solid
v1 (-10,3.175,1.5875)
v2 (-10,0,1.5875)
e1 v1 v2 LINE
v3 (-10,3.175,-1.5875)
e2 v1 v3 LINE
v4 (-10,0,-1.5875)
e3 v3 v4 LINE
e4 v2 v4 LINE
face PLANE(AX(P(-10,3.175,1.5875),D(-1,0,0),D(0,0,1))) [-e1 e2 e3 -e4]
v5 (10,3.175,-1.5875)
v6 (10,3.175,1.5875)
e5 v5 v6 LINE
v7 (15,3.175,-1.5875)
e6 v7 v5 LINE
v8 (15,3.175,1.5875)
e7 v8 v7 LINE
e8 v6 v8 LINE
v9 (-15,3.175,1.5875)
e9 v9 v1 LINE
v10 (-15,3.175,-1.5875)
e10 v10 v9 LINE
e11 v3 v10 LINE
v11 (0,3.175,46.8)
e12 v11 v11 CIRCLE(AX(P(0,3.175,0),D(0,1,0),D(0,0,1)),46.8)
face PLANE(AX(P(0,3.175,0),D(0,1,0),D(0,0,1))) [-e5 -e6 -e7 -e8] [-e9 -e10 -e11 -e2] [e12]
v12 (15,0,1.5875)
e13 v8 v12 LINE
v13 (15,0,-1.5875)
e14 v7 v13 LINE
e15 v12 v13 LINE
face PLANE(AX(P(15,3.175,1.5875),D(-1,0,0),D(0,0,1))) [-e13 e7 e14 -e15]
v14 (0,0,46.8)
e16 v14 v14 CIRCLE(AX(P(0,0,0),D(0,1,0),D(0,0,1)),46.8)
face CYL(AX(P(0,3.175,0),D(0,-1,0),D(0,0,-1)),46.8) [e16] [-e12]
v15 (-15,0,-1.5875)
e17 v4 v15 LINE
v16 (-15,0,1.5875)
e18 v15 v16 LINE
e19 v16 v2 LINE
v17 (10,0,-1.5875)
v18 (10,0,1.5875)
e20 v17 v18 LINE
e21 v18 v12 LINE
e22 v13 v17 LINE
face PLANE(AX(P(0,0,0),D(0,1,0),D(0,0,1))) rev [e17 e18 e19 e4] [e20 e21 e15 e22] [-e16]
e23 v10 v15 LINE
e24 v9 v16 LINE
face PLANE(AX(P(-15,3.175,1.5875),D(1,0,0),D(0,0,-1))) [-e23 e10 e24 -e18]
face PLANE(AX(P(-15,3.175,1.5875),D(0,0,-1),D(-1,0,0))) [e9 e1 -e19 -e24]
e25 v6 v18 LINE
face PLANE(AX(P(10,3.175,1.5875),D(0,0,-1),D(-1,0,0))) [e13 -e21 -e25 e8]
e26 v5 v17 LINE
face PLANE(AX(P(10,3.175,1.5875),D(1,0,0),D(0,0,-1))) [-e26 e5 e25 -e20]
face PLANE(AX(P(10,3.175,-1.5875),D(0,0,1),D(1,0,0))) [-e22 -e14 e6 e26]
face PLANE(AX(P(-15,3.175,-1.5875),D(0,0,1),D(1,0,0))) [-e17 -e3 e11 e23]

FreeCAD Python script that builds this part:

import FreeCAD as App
import Part
import Sketcher

doc = App.newDocument("Part")
params = doc.addObject("Spreadsheet::Sheet", "Params")
for row, (alias, value) in enumerate([
    ("sketch1_diameter", "93.6 mm"),
    ("sketch1_width", "5 mm"),
    ("pad1_length", "3.175 mm"),
], start=1):
    params.set(f"A{row}", alias)
    params.set(f"B{row}", "=" + value)
    params.setAlias(f"B{row}", alias)

body = doc.addObject("PartDesign::Body", "Body")

# Sketch on XZ plane
sketch1 = body.newObject("Sketcher::SketchObject", "Sketch")
sketch1.AttachmentSupport = (doc.getObject("XZ_Plane"), [""])
sketch1.MapMode = "FlatFace"
sketch1.addGeometry(Part.Circle(App.Vector(0, 0, 0), App.Vector(0, 0, 1), 46.8), False)
sketch1.addGeometry(Part.LineSegment(App.Vector(-10, 1.6, 0), App.Vector(-15, 1.6, 0)), False)
sketch1.addGeometry(Part.LineSegment(App.Vector(-15, 1.6, 0), App.Vector(-15, -1.6, 0)), False)
sketch1.addGeometry(Part.LineSegment(App.Vector(-15, -1.6, 0), App.Vector(-10, -1.6, 0)), False)
sketch1.addGeometry(Part.LineSegment(App.Vector(-10, -1.6, 0), App.Vector(-10, 1.6, 0)), False)
sketch1.addGeometry(Part.LineSegment(App.Vector(15, 1.6, 0), App.Vector(10, 1.6, 0)), False)
sketch1.addGeometry(Part.LineSegment(App.Vector(10, 1.6, 0), App.Vector(10, -1.6, 0)), False)
sketch1.addGeometry(Part.LineSegment(App.Vector(10, -1.6, 0), App.Vector(15, -1.6, 0)), False)
sketch1.addGeometry(Part.LineSegment(App.Vector(15, -1.6, 0), App.Vector(15, 1.6, 0)), False)
sketch1.addConstraint(Sketcher.Constraint("Coincident", 1, 2, 2, 1))
sketch1.addConstraint(Sketcher.Constraint("Coincident", 2, 2, 3, 1))
sketch1.addConstraint(Sketcher.Constraint("Coincident", 3, 2, 4, 1))
sketch1.addConstraint(Sketcher.Constraint("Coincident", 4, 2, 1, 1))
sketch1.addConstraint(Sketcher.Constraint("Coincident", 5, 2, 6, 1))
sketch1.addConstraint(Sketcher.Constraint("Coincident", 6, 2, 7, 1))
sketch1.addConstraint(Sketcher.Constraint("Coincident", 7, 2, 8, 1))
sketch1.addConstraint(Sketcher.Constraint("Coincident", 8, 2, 5, 1))
sketch1.addConstraint(Sketcher.Constraint("Horizontal", 1))
sketch1.addConstraint(Sketcher.Constraint("Vertical", 2))
sketch1.addConstraint(Sketcher.Constraint("Horizontal", 3))
sketch1.addConstraint(Sketcher.Constraint("Vertical", 4))
sketch1.addConstraint(Sketcher.Constraint("Horizontal", 5))
sketch1.addConstraint(Sketcher.Constraint("Vertical", 6))
sketch1.addConstraint(Sketcher.Constraint("Horizontal", 7))
sketch1.addConstraint(Sketcher.Constraint("Vertical", 8))
sketch1.addConstraint(Sketcher.Constraint("Coincident", 0, 3, -1, 1))
sketch1.addConstraint(Sketcher.Constraint("Symmetric", 3, 2, 5, 2, -1, 1))
sketch1.addConstraint(Sketcher.Constraint("Symmetric", 1, 2, 7, 2, -1, 1))
sketch1.addConstraint(Sketcher.Constraint("Horizontal", 4, 2, 5, 2))
sketch1.addConstraint(Sketcher.Constraint("Diameter", 0, 93.6))
sketch1.addConstraint(Sketcher.Constraint("DistanceX", 1, 2, 1, 1, 5.0))
sketch1.addConstraint(Sketcher.Constraint("DistanceX", 1, 2, -1, 1, 15.0))
sketch1.addConstraint(Sketcher.Constraint("DistanceY", 2, 2, 2, 1, 3.175))
sketch1.setExpression("Constraints[20]", "Params.sketch1_diameter")
sketch1.setExpression("Constraints[21]", "Params.sketch1_width")
pad1 = body.newObject("PartDesign::Pad", "Pad")
pad1.Profile = sketch1
pad1.setExpression("Length", "Params.pad1_length")
pad1.Reversed = True

doc.recompute()
